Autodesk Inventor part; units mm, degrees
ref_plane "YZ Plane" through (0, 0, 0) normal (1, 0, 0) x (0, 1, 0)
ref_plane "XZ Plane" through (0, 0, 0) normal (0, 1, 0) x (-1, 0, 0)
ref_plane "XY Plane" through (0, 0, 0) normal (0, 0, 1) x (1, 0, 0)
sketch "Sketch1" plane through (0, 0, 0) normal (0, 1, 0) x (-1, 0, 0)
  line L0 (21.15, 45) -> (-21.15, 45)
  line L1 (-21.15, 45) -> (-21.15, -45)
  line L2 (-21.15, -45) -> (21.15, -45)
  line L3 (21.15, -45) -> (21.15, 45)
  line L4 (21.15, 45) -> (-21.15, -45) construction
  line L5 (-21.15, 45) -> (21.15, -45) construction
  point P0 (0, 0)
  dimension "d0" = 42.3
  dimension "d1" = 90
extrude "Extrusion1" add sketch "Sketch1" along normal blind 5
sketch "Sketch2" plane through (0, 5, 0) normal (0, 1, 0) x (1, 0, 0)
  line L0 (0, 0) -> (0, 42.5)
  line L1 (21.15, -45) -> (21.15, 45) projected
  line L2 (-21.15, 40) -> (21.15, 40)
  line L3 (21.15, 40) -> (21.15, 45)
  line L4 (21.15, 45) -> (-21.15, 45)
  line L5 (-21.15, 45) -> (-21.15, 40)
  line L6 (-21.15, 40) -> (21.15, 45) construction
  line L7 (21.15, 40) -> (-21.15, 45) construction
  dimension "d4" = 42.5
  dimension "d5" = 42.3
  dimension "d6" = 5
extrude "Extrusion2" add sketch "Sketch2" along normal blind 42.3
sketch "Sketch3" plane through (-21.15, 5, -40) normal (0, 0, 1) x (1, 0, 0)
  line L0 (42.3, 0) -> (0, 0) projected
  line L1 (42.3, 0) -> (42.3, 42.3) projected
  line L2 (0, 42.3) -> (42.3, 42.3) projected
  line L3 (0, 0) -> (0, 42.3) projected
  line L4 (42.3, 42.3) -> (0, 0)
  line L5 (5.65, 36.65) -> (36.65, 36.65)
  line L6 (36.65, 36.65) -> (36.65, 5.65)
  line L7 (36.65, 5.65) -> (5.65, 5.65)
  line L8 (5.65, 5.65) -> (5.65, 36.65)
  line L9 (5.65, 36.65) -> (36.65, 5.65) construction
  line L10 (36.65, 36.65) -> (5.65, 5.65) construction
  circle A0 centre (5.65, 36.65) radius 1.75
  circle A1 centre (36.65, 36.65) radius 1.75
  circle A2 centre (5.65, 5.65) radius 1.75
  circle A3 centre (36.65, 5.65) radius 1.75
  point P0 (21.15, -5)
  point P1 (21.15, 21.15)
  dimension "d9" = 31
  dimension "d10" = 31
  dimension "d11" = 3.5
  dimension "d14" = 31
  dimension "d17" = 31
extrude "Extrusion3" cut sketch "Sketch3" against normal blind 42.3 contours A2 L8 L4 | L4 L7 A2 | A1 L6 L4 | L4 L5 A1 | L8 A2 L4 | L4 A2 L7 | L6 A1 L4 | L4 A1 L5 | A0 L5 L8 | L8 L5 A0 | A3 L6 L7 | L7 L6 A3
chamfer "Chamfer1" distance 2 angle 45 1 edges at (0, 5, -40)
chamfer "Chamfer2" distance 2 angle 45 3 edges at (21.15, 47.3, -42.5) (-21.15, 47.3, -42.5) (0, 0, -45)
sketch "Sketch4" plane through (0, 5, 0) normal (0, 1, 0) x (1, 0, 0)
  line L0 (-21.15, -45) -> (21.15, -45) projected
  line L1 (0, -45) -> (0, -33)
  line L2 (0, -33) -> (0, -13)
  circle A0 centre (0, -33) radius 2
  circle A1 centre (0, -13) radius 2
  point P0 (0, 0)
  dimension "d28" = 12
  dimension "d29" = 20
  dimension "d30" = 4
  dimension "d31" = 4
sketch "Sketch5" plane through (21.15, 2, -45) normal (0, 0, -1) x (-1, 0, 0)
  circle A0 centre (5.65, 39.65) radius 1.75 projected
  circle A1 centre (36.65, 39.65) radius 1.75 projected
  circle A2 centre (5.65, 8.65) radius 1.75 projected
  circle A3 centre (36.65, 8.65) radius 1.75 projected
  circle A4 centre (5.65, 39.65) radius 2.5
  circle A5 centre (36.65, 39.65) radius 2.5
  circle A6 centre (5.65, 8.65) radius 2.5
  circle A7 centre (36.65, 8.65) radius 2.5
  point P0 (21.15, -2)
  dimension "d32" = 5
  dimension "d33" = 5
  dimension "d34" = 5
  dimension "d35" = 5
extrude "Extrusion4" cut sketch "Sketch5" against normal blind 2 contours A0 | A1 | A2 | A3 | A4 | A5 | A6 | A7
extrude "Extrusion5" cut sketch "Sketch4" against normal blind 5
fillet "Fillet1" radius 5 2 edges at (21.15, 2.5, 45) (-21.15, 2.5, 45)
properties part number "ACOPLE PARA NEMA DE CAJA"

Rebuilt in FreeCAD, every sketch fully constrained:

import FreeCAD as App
import Part
import Sketcher


def edges_at(feature, points):
    """Names of the edges that pass closest to the given points."""
    edges = feature.Shape.Edges
    near = lambda p: min(range(len(edges)), key=lambda i: edges[i].distToShape(Part.Vertex(*p))[0])
    return sorted({f"Edge{near(p) + 1}" for p in points})

doc = App.newDocument("Part")
body = doc.addObject("PartDesign::Body", "Body")

# Sketch on XZ plane
sketch1 = body.newObject("Sketcher::SketchObject", "Sketch")
sketch1.AttachmentSupport = (doc.getObject("XZ_Plane"), [""])
sketch1.MapMode = "FlatFace"
sketch1.addGeometry([
    Part.LineSegment(App.Vector(-21, -45, 0), App.Vector(-21, 45, 0)),
    Part.LineSegment(App.Vector(-21, 45, 0), App.Vector(21, 45, 0)),
    Part.LineSegment(App.Vector(21, 45, 0), App.Vector(21, -45, 0)),
    Part.LineSegment(App.Vector(21, -45, 0), App.Vector(-21, -45, 0)),
], False)
sketch1.addConstraint([
    Sketcher.Constraint("Coincident", 0, 2, 1, 1),
    Sketcher.Constraint("Coincident", 1, 2, 2, 1),
    Sketcher.Constraint("Coincident", 2, 2, 3, 1),
    Sketcher.Constraint("Coincident", 3, 2, 0, 1),
    Sketcher.Constraint("Vertical", 0),
    Sketcher.Constraint("Horizontal", 1),
    Sketcher.Constraint("Vertical", 2),
    Sketcher.Constraint("Horizontal", 3),
    Sketcher.Constraint("Symmetric", 0, 2, 2, 2, -1, 1),
    Sketcher.Constraint("DistanceY", 0, 1, 0, 2, 90.0),
    Sketcher.Constraint("DistanceX", 1, 1, 1, 2, 42.3),
])
pad1 = body.newObject("PartDesign::Pad", "Pad")
pad1.Profile = sketch1
pad1.Length = 5
pad1.Reversed = True

# Sketch on XZ plane
sketch2 = body.newObject("Sketcher::SketchObject", "Sketch001")
sketch2.AttachmentSupport = (doc.getObject("XZ_Plane"), [""])
sketch2.MapMode = "FlatFace"
sketch2.AttachmentOffset = App.Placement(App.Vector(0, 0, -5), App.Rotation())
sketch2.addGeometry([
    Part.LineSegment(App.Vector(-21, -40, 0), App.Vector(21, -40, 0)),
    Part.LineSegment(App.Vector(21, -40, 0), App.Vector(21, -45, 0)),
    Part.LineSegment(App.Vector(21, -45, 0), App.Vector(-21, -45, 0)),
    Part.LineSegment(App.Vector(-21, -45, 0), App.Vector(-21, -40, 0)),
], False)
sketch2.addConstraint([
    Sketcher.Constraint("Coincident", 0, 2, 1, 1),
    Sketcher.Constraint("Coincident", 1, 2, 2, 1),
    Sketcher.Constraint("Coincident", 2, 2, 3, 1),
    Sketcher.Constraint("Coincident", 3, 2, 0, 1),
    Sketcher.Constraint("Horizontal", 0),
    Sketcher.Constraint("Vertical", 1),
    Sketcher.Constraint("Horizontal", 2),
    Sketcher.Constraint("Vertical", 3),
    Sketcher.Constraint("DistanceY", 1, 2, 1, 1, 5.0),
    Sketcher.Constraint("DistanceX", 0, 1, 0, 2, 42.3),
    Sketcher.Constraint("DistanceY", 0, 2, -1, 1, 40.0),
    Sketcher.Constraint("DistanceX", -1, 1, 0, 2, 21.15),
])
pad2 = body.newObject("PartDesign::Pad", "Pad001")
pad2.Profile = sketch2
pad2.Length = 42.3
pad2.Reversed = True

# Sketch on XY plane
sketch3 = body.newObject("Sketcher::SketchObject", "Sketch002")
sketch3.AttachmentSupport = (doc.getObject("XY_Plane"), [""])
sketch3.MapMode = "FlatFace"
sketch3.AttachmentOffset = App.Placement(App.Vector(0, 0, -40), App.Rotation())
sketch3.addGeometry([
    Part.Circle(App.Vector(-15.5, 10.7, 0), App.Vector(0, 0, 1), 1.8),
    Part.Circle(App.Vector(15.5, 41.6, 0), App.Vector(0, 0, 1), 1.8),
    Part.Circle(App.Vector(-15.5, 41.6, 0), App.Vector(0, 0, 1), 1.8),
    Part.Circle(App.Vector(15.5, 10.7, 0), App.Vector(0, 0, 1), 1.8),
], False)
sketch3.addConstraint([
    Sketcher.Constraint("Equal", 0, 1),
    Sketcher.Constraint("Equal", 1, 2),
    Sketcher.Constraint("Equal", 2, 3),
    Sketcher.Constraint("Symmetric", 1, 3, 2, 3, -2),
    Sketcher.Constraint("Symmetric", 0, 3, 3, 3, -2),
    Sketcher.Constraint("Vertical", 0, 3, 2, 3),
    Sketcher.Constraint("Diameter", 0, 3.5),
    Sketcher.Constraint("DistanceX", 0, 3, 1, 3, 31.0),
    Sketcher.Constraint("DistanceY", 0, 3, 1, 3, 31.0),
    Sketcher.Constraint("DistanceY", -1, 1, 0, 3, 10.65),
])
pocket1 = body.newObject("PartDesign::Pocket", "Pocket")
pocket1.Profile = sketch3
pocket1.Length = 42.3
doc.recompute()

chamfer = body.newObject("PartDesign::Chamfer", "Chamfer")
chamfer.Base = (pocket1, edges_at(pocket1, [(0, 5, -40)]))
chamfer.Size = 2
doc.recompute()

chamfer2 = body.newObject("PartDesign::Chamfer", "Chamfer001")
chamfer2.Base = (chamfer, edges_at(chamfer, [(21.15, 47.3, -42.5), (-21.15, 47.3, -42.5), (0, 0, -45)]))
chamfer2.Size = 2

# Sketch on XY plane
sketch4 = body.newObject("Sketcher::SketchObject", "Sketch003")
sketch4.AttachmentSupport = (doc.getObject("XY_Plane"), [""])
sketch4.MapMode = "FlatFace"
sketch4.AttachmentOffset = App.Placement(App.Vector(0, 0, -45), App.Rotation())
sketch4.addGeometry([
    Part.Circle(App.Vector(15.5, 41.6, 0), App.Vector(0, 0, 1), 2.5),
    Part.Circle(App.Vector(-15.5, 41.6, 0), App.Vector(0, 0, 1), 2.5),
    Part.Circle(App.Vector(15.5, 10.7, 0), App.Vector(0, 0, 1), 2.5),
    Part.Circle(App.Vector(-15.5, 10.7, 0), App.Vector(0, 0, 1), 2.5),
], False)
sketch4.addConstraint([
    Sketcher.Constraint("Equal", 0, 1),
    Sketcher.Constraint("Equal", 1, 2),
    Sketcher.Constraint("Equal", 2, 3),
    Sketcher.Constraint("Symmetric", 0, 3, 1, 3, -2),
    Sketcher.Constraint("Symmetric", 2, 3, 3, 3, -2),
    Sketcher.Constraint("Vertical", 0, 3, 2, 3),
    Sketcher.Constraint("Diameter", 0, 5.0),
    Sketcher.Constraint("DistanceX", 1, 3, 0, 3, 31.0),
    Sketcher.Constraint("DistanceY", 2, 3, 0, 3, 31.0),
    Sketcher.Constraint("DistanceY", -1, 1, 0, 3, 41.65),
])
pocket2 = body.newObject("PartDesign::Pocket", "Pocket001")
pocket2.Profile = sketch4
pocket2.Length = 2
pocket2.Reversed = True

# Sketch on XZ plane
sketch5 = body.newObject("Sketcher::SketchObject", "Sketch004")
sketch5.AttachmentSupport = (doc.getObject("XZ_Plane"), [""])
sketch5.MapMode = "FlatFace"
sketch5.AttachmentOffset = App.Placement(App.Vector(0, 0, -5), App.Rotation())
sketch5.addGeometry([
    Part.Circle(App.Vector(0, 33, 0), App.Vector(0, 0, 1), 2),
    Part.Circle(App.Vector(0, 13, 0), App.Vector(0, 0, 1), 2),
], False)
sketch5.addConstraint([
    Sketcher.Constraint("Equal", 0, 1),
    Sketcher.Constraint("PointOnObject", 0, 3, -2),
    Sketcher.Constraint("PointOnObject", 1, 3, -2),
    Sketcher.Constraint("Diameter", 0, 4.0),
    Sketcher.Constraint("DistanceY", 1, 3, 0, 3, 20.0),
    Sketcher.Constraint("DistanceY", -1, 1, 0, 3, 33.0),
])
pocket3 = body.newObject("PartDesign::Pocket", "Pocket002")
pocket3.Profile = sketch5
pocket3.Length = 5
pocket3.Reversed = True
doc.recompute()

fillet = body.newObject("PartDesign::Fillet", "Fillet")
fillet.Base = (pocket3, edges_at(pocket3, [(21.15, 2.5, 45), (-21.15, 2.5, 45)]))
fillet.Radius = 5

doc.recompute()
